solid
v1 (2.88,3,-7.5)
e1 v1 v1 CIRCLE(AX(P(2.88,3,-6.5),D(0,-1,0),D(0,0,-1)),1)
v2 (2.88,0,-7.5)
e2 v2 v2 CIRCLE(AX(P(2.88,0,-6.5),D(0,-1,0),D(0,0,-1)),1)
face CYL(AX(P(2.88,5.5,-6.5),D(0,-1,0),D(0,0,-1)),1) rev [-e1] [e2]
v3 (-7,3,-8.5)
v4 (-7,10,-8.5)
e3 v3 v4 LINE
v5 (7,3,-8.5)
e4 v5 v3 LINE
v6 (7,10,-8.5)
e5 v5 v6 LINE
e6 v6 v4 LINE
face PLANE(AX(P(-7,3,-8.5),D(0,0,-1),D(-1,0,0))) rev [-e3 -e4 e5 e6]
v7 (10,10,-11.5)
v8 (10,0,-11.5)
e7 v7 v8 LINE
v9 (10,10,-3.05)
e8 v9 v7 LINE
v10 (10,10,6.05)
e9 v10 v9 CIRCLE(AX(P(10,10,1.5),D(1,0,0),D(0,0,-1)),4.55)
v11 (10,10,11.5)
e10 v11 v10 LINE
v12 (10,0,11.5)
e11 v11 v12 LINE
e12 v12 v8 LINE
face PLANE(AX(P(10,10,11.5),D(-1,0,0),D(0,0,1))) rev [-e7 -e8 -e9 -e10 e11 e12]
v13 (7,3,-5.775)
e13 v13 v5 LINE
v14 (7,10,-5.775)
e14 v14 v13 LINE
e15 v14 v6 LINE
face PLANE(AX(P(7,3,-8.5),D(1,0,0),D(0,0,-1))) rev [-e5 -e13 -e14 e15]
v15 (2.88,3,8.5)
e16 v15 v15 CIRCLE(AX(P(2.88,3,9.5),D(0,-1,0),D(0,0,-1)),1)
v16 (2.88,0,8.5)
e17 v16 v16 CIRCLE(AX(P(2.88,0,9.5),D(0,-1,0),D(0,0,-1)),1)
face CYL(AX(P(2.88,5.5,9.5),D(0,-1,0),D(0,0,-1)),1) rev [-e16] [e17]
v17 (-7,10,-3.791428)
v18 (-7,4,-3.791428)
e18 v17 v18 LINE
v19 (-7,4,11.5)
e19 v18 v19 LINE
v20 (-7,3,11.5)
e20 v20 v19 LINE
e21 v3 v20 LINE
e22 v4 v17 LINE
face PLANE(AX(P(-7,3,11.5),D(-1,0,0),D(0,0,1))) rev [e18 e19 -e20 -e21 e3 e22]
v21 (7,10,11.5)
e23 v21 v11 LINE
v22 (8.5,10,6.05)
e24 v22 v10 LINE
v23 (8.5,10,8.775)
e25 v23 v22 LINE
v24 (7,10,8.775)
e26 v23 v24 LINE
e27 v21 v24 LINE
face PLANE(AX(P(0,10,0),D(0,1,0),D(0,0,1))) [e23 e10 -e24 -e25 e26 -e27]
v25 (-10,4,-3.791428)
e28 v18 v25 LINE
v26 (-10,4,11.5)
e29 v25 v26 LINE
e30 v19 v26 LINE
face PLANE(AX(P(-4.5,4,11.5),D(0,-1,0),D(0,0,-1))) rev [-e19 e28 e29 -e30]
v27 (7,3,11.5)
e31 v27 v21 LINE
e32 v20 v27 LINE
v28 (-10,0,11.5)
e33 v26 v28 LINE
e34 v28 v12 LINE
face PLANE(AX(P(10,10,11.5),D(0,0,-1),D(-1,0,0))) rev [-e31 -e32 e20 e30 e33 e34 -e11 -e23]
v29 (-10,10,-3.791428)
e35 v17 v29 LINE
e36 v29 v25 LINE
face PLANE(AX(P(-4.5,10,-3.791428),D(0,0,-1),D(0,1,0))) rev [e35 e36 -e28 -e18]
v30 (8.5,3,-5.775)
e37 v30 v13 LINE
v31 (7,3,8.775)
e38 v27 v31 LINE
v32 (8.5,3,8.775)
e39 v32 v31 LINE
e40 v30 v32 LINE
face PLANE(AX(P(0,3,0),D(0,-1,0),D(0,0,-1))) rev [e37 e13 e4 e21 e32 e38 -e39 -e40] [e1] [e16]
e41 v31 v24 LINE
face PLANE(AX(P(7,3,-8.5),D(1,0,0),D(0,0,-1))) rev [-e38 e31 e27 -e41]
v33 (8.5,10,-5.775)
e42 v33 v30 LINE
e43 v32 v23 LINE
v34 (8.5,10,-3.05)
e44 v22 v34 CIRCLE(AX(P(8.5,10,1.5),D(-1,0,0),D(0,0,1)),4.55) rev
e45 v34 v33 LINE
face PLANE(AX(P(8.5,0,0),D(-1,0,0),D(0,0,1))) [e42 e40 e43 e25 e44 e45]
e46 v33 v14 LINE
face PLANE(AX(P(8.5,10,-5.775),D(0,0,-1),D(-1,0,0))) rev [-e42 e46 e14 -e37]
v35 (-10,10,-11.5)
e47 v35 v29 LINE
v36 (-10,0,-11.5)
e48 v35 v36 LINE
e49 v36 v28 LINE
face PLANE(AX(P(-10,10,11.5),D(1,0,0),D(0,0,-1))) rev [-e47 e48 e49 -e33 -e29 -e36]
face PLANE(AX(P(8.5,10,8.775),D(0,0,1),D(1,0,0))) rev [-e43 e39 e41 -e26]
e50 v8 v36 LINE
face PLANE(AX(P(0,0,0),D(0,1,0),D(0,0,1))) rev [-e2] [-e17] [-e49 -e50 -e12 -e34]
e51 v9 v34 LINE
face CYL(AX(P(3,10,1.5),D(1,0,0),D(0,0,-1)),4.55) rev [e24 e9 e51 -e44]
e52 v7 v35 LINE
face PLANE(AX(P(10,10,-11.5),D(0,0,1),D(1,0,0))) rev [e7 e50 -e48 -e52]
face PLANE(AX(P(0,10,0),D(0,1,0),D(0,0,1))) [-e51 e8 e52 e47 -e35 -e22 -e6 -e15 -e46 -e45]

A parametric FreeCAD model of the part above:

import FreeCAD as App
import Part
import Sketcher


def add_polygon(sketch, points):
    """Adds a closed chain of lines whose ends are joined by coincident constraints."""
    first, n = sketch.GeometryCount, len(points)
    for a, b in zip(points, points[1:] + points[:1]):
        sketch.addGeometry(Part.LineSegment(App.Vector(*a, 0), App.Vector(*b, 0)), False)
    for i in range(n):
        sketch.addConstraint(Sketcher.Constraint("Coincident", first + i, 2, first + (i + 1) % n, 1))

doc = App.newDocument("Part")
body = doc.addObject("PartDesign::Body", "Body")

sketch1 = body.newObject("Sketcher::SketchObject", "Sketch")
sketch1.AttachmentSupport = (doc.getObject("XZ_Plane"), [""])
sketch1.MapMode = "FlatFace"
add_polygon(sketch1, [(-10, -11.5), (-10, 11.5), (10, 11.5), (10, -11.5)])
sketch1.addConstraint(Sketcher.Constraint("Vertical", 0))
sketch1.addConstraint(Sketcher.Constraint("Horizontal", 1))
sketch1.addConstraint(Sketcher.Constraint("Vertical", 2))
sketch1.addConstraint(Sketcher.Constraint("Horizontal", 3))
sketch1.addConstraint(Sketcher.Constraint("Symmetric", 0, 2, 2, 2, -1, 1))
sketch1.addConstraint(Sketcher.Constraint("DistanceX", 1, 1, 1, 2, 20.0))
sketch1.addConstraint(Sketcher.Constraint("DistanceY", 0, 1, 0, 2, 23.0))
pad1 = body.newObject("PartDesign::Pad", "Pad")
pad1.Profile = sketch1
pad1.Length = 10
pad1.Reversed = True

sketch2 = body.newObject("Sketcher::SketchObject", "Sketch001")
sketch2.AttachmentSupport = (doc.getObject("XZ_Plane"), [""])
sketch2.MapMode = "FlatFace"
sketch2.AttachmentOffset = App.Placement(App.Vector(0, 0, -10), App.Rotation())
add_polygon(sketch2, [(-7, 11.5), (7, 11.5), (7, -8.5), (-7, -8.5)])
sketch2.addConstraint(Sketcher.Constraint("Horizontal", 0))
sketch2.addConstraint(Sketcher.Constraint("Vertical", 1))
sketch2.addConstraint(Sketcher.Constraint("Horizontal", 2))
sketch2.addConstraint(Sketcher.Constraint("Vertical", 3))
sketch2.addConstraint(Sketcher.Constraint("DistanceX", 0, 1, 0, 2, 14.0))
sketch2.addConstraint(Sketcher.Constraint("DistanceY", 1, 2, 1, 1, 20.0))
sketch2.addConstraint(Sketcher.Constraint("DistanceX", -1, 1, 0, 2, 7.0))
sketch2.addConstraint(Sketcher.Constraint("DistanceY", -1, 1, 0, 2, 11.5))
pocket1 = body.newObject("PartDesign::Pocket", "Pocket")
pocket1.Profile = sketch2
pocket1.Length = 7
pocket1.Reversed = True

sketch3 = body.newObject("Sketcher::SketchObject", "Sketch002")
sketch3.AttachmentSupport = (doc.getObject("YZ_Plane"), [""])
sketch3.MapMode = "FlatFace"
sketch3.AttachmentOffset = App.Placement(App.Vector(0, 0, 10), App.Rotation())
sketch3.addGeometry(Part.Circle(App.Vector(10, 1.5, 0), App.Vector(0, 0, 1), 4.55), False)
sketch3.addConstraint(Sketcher.Constraint("Diameter", 0, 9.1))
sketch3.addConstraint(Sketcher.Constraint("DistanceX", -1, 1, 0, 3, 10.0))
sketch3.addConstraint(Sketcher.Constraint("DistanceY", -1, 1, 0, 3, 1.5))
pocket2 = body.newObject("PartDesign::Pocket", "Pocket001")
pocket2.Profile = sketch3
pocket2.Length = 7

sketch4 = body.newObject("Sketcher::SketchObject", "Sketch003")
sketch4.AttachmentSupport = (doc.getObject("YZ_Plane"), [""])
sketch4.MapMode = "FlatFace"
sketch4.AttachmentOffset = App.Placement(App.Vector(0, 0, 7), App.Rotation())
add_polygon(sketch4, [(10, -5.775), (3, -5.775), (3, 8.775), (10, 8.775)])
sketch4.addConstraint(Sketcher.Constraint("Horizontal", 0))
sketch4.addConstraint(Sketcher.Constraint("Vertical", 1))
sketch4.addConstraint(Sketcher.Constraint("Horizontal", 2))
sketch4.addConstraint(Sketcher.Constraint("Vertical", 3))
sketch4.addConstraint(Sketcher.Constraint("DistanceX", 0, 2, 0, 1, 7.0))
sketch4.addConstraint(Sketcher.Constraint("DistanceX", -1, 1, 0, 2, 3.0))
sketch4.addConstraint(Sketcher.Constraint("DistanceY", 1, 1, 1, 2, 14.55))
sketch4.addConstraint(Sketcher.Constraint("DistanceY", 0, 2, -1, 1, 5.775))
pocket3 = body.newObject("PartDesign::Pocket", "Pocket002")
pocket3.Profile = sketch4
pocket3.Length = 1.5
pocket3.Reversed = True

sketch5 = body.newObject("Sketcher::SketchObject", "Sketch004")
sketch5.AttachmentSupport = (doc.getObject("YZ_Plane"), [""])
sketch5.MapMode = "FlatFace"
sketch5.AttachmentOffset = App.Placement(App.Vector(0, 0, -10), App.Rotation())
add_polygon(sketch5, [(10, -3.791428), (4, -3.791428), (4, 11.5), (10, 11.5)])
sketch5.addConstraint(Sketcher.Constraint("Horizontal", 0))
sketch5.addConstraint(Sketcher.Constraint("Vertical", 1))
sketch5.addConstraint(Sketcher.Constraint("Horizontal", 2))
sketch5.addConstraint(Sketcher.Constraint("Vertical", 3))
sketch5.addConstraint(Sketcher.Constraint("DistanceX", 0, 2, 0, 1, 6.0))
sketch5.addConstraint(Sketcher.Constraint("DistanceX", -1, 1, 0, 2, 4.0))
sketch5.addConstraint(Sketcher.Constraint("DistanceY", -1, 1, 1, 2, 11.5))
sketch5.addConstraint(Sketcher.Constraint("DistanceY", 1, 1, 1, 2, 15.291428))
pocket4 = body.newObject("PartDesign::Pocket", "Pocket003")
pocket4.Profile = sketch5
pocket4.Length = 5.5
pocket4.Reversed = True

sketch6 = body.newObject("Sketcher::SketchObject", "Sketch005")
sketch6.AttachmentSupport = (doc.getObject("XZ_Plane"), [""])
sketch6.MapMode = "FlatFace"
sketch6.addGeometry(Part.Circle(App.Vector(2.88, 9.5, 0), App.Vector(0, 0, 1), 1), False)
sketch6.addGeometry(Part.Circle(App.Vector(2.88, -6.5, 0), App.Vector(0, 0, 1), 1), False)
sketch6.addConstraint(Sketcher.Constraint("Equal", 0, 1))
sketch6.addConstraint(Sketcher.Constraint("Vertical", 0, 3, 1, 3))
sketch6.addConstraint(Sketcher.Constraint("Diameter", 0, 2.0))
sketch6.addConstraint(Sketcher.Constraint("DistanceY", 1, 3, 0, 3, 16.0))
sketch6.addConstraint(Sketcher.Constraint("DistanceY", -1, 1, 0, 3, 9.5))
sketch6.addConstraint(Sketcher.Constraint("DistanceX", -1, 1, 0, 3, 2.88))
pocket5 = body.newObject("PartDesign::Pocket", "Pocket004")
pocket5.Profile = sketch6
pocket5.Length = 5.5

doc.recompute()
